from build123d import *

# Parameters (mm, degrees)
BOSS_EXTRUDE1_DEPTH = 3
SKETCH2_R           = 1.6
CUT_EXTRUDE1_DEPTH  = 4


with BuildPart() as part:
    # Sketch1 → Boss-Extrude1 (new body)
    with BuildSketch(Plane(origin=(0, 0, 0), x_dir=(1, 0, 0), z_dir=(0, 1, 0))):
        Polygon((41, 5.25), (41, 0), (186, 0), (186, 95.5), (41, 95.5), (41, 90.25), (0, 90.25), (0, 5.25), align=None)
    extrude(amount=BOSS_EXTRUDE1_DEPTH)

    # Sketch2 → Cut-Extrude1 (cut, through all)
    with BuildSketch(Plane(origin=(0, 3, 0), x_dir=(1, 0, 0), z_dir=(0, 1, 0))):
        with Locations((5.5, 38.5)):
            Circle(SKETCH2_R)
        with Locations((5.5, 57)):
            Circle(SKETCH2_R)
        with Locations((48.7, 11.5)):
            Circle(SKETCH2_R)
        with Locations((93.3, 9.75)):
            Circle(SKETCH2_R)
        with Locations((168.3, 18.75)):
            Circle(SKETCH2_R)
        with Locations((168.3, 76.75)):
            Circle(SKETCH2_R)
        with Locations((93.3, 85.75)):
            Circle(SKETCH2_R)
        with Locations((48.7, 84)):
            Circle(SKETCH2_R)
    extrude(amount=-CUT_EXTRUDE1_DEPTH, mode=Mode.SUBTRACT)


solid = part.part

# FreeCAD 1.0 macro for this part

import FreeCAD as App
import Part
import Sketcher


def add_polygon(sketch, points):
    """Adds a closed chain of lines whose ends are joined by coincident constraints."""
    first, n = sketch.GeometryCount, len(points)
    for a, b in zip(points, points[1:] + points[:1]):
        sketch.addGeometry(Part.LineSegment(App.Vector(*a, 0), App.Vector(*b, 0)), False)
    for i in range(n):
        sketch.addConstraint(Sketcher.Constraint("Coincident", first + i, 2, first + (i + 1) % n, 1))

doc = App.newDocument("Part")
body = doc.addObject("PartDesign::Body", "Body")

sketch1 = body.newObject("Sketcher::SketchObject", "Sketch")
sketch1.AttachmentSupport = (doc.getObject("XZ_Plane"), [""])
sketch1.MapMode = "FlatFace"
add_polygon(sketch1, [(41, -5), (41, 0), (186, 0), (186, -96), (41, -96), (41, -90), (0, -90), (0, -5)])
sketch1.addConstraint([
    Sketcher.Constraint("Vertical", 0),
    Sketcher.Constraint("Horizontal", 1),
    Sketcher.Constraint("Vertical", 2),
    Sketcher.Constraint("Horizontal", 3),
    Sketcher.Constraint("Vertical", 4),
    Sketcher.Constraint("Horizontal", 5),
    Sketcher.Constraint("Vertical", 6),
    Sketcher.Constraint("Horizontal", 7),
    Sketcher.Constraint("PointOnObject", 0, 2, -1),
    Sketcher.Constraint("PointOnObject", 5, 2, -2),
    Sketcher.Constraint("Vertical", 0, 2, 3, 2),
    Sketcher.Constraint("Equal", 0, 4),
    Sketcher.Constraint("DistanceX", 1, 1, 1, 2, 145.0),
    Sketcher.Constraint("DistanceX", 5, 2, 5, 1, 41.0),
    Sketcher.Constraint("DistanceY", 6, 1, 6, 2, 85.0),
    Sketcher.Constraint("DistanceY", 2, 2, 2, 1, 95.5),
])
pad1 = body.newObject("PartDesign::Pad", "Pad")
pad1.Profile = sketch1
pad1.Length = 3
pad1.Reversed = True

sketch2 = body.newObject("Sketcher::SketchObject", "Sketch001")
sketch2.AttachmentSupport = (doc.getObject("XZ_Plane"), [""])
sketch2.MapMode = "FlatFace"
sketch2.AttachmentOffset = App.Placement(App.Vector(0, 0, -3), App.Rotation())
sketch2.addGeometry([
    Part.Circle(App.Vector(5.5, -38.5, 0), App.Vector(0, 0, 1), 1.6),
    Part.Circle(App.Vector(5.5, -57, 0), App.Vector(0, 0, 1), 1.6),
    Part.Circle(App.Vector(48.7, -11.5, 0), App.Vector(0, 0, 1), 1.6),
    Part.Circle(App.Vector(93.3, -9.8, 0), App.Vector(0, 0, 1), 1.6),
    Part.Circle(App.Vector(168.3, -18.8, 0), App.Vector(0, 0, 1), 1.6),
    Part.Circle(App.Vector(168.3, -76.8, 0), App.Vector(0, 0, 1), 1.6),
    Part.Circle(App.Vector(93.3, -85.8, 0), App.Vector(0, 0, 1), 1.6),
    Part.Circle(App.Vector(48.7, -84, 0), App.Vector(0, 0, 1), 1.6),
], False)
sketch2.addConstraint([
    Sketcher.Constraint("Equal", 0, 1),
    Sketcher.Constraint("Equal", 1, 2),
    Sketcher.Constraint("Equal", 2, 3),
    Sketcher.Constraint("Equal", 3, 4),
    Sketcher.Constraint("Equal", 4, 5),
    Sketcher.Constraint("Equal", 5, 6),
    Sketcher.Constraint("Equal", 6, 7),
    Sketcher.Constraint("Vertical", 0, 3, 1, 3),
    Sketcher.Constraint("Vertical", 4, 3, 5, 3),
    Sketcher.Constraint("Vertical", 3, 3, 6, 3),
    Sketcher.Constraint("Vertical", 2, 3, 7, 3),
    Sketcher.Constraint("Diameter", 0, 3.2),
    Sketcher.Constraint("DistanceY", 1, 3, -1, 1, 57.0),
    Sketcher.Constraint("DistanceY", 7, 3, -1, 1, 84.0),
    Sketcher.Constraint("DistanceY", 0, 3, 2, 3, 27.0),
    Sketcher.Constraint("DistanceX", 3, 3, 4, 3, 75.0),
    Sketcher.Constraint("DistanceY", 4, 3, 3, 3, 9.0),
    Sketcher.Constraint("DistanceY", 5, 3, 4, 3, 58.0),
    Sketcher.Constraint("DistanceY", 6, 3, 5, 3, 9.0),
    Sketcher.Constraint("DistanceX", -1, 1, 0, 3, 5.5),
    Sketcher.Constraint("DistanceY", 0, 3, -1, 1, 38.5),
    Sketcher.Constraint("DistanceX", -1, 1, 2, 3, 48.7),
    Sketcher.Constraint("DistanceX", -1, 1, 3, 3, 93.3),
    Sketcher.Constraint("DistanceY", 3, 3, -1, 1, 9.75),
])
pocket1 = body.newObject("PartDesign::Pocket", "Pocket")
pocket1.Profile = sketch2
pocket1.Type = "ThroughAll"
pocket1.Reversed = True

doc.recompute()
